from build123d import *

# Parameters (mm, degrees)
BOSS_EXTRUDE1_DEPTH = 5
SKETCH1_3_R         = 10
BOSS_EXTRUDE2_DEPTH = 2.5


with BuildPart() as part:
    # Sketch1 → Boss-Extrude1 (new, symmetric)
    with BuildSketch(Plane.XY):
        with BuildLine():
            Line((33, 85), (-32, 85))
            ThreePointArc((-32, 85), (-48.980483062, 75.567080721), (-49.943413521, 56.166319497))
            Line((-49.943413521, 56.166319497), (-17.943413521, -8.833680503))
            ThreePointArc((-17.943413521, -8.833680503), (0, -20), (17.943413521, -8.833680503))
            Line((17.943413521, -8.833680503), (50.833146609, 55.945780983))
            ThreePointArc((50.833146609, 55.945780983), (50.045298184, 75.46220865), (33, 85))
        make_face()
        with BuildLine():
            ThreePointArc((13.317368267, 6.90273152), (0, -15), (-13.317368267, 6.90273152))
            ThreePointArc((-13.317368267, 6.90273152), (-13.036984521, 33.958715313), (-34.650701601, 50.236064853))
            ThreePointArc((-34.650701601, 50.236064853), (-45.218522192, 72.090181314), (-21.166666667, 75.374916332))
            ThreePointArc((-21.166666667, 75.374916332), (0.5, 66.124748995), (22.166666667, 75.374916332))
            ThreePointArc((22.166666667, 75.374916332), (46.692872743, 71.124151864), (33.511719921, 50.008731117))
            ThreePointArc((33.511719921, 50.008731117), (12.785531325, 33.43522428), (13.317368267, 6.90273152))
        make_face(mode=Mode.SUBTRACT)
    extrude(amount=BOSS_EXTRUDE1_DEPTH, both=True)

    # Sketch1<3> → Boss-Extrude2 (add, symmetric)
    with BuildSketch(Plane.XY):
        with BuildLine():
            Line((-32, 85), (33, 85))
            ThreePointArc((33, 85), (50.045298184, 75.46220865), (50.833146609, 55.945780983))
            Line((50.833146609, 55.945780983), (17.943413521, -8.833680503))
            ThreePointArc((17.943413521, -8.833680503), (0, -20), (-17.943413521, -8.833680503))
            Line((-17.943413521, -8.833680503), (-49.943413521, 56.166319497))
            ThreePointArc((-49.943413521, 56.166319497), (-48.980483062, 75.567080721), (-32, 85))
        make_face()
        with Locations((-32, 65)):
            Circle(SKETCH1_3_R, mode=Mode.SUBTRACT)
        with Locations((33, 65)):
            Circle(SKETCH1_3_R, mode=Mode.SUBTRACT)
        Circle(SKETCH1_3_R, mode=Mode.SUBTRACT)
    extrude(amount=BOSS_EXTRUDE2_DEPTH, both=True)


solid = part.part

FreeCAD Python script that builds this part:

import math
import FreeCAD as App
import Part
import Sketcher
from FreeCAD import Vector

doc = App.newDocument("Part")
params = doc.addObject("Spreadsheet::Sheet", "Params")
for row, (alias, value) in enumerate([
    ("sketch1_radius", "20 mm"),
    ("sketch1_radius2", "30 mm"),
    ("sketch1_radius3", "15 mm"),
    ("sketch1_width", "65 mm"),
    ("pad1_length", "10 mm"),
    ("sketch2_diameter", "20 mm"),
    ("sketch2_radius", "20 mm"),
    ("sketch2_width", "65 mm"),
    ("pad2_length", "5 mm"),
], start=1):
    params.set(f"A{row}", alias)
    params.set(f"B{row}", "=" + value)
    params.setAlias(f"B{row}", alias)

body = doc.addObject("PartDesign::Body", "Body")

# Sketch on XY plane
sketch1 = doc.addObject("Sketcher::SketchObject", "Sketch")
body.addObject(sketch1)
sketch1.AttachmentSupport = (doc.XY_Plane, [""])
sketch1.MapMode = "FlatFace"
sketch1.addGeometry(Part.LineSegment(Vector(33, 85, 0), Vector(-32, 85, 0)), False)
sketch1.addGeometry(Part.ArcOfCircle(Part.Circle(Vector(-32, 65, 0), Vector(0, 0, 1), 20), math.radians(90), math.radians(206)), False)
sketch1.addGeometry(Part.LineSegment(Vector(-50, 56, 0), Vector(-18, -9, 0)), False)
sketch1.addGeometry(Part.ArcOfCircle(Part.Circle(Vector(0, 0, 0), Vector(0, 0, 1), 20), math.radians(-154), math.radians(-26)), False)
sketch1.addGeometry(Part.LineSegment(Vector(18, -9, 0), Vector(51, 56, 0)), False)
sketch1.addGeometry(Part.ArcOfCircle(Part.Circle(Vector(33, 65, 0), Vector(0, 0, 1), 20), math.radians(-27), math.radians(90)), False)
sketch1.addGeometry(Part.ArcOfCircle(Part.Circle(Vector(40, 21, 0), Vector(0, 0, 1), 30), math.radians(102), math.radians(207)), False)
sketch1.addGeometry(Part.ArcOfCircle(Part.Circle(Vector(0, 0, 0), Vector(0, 0, 1), 15), math.radians(153), math.radians(387)), False)
sketch1.addGeometry(Part.ArcOfCircle(Part.Circle(Vector(-40, 21, 0), Vector(0, 0, 1), 30), math.radians(-27), math.radians(80)), False)
sketch1.addGeometry(Part.ArcOfCircle(Part.Circle(Vector(-32, 65, 0), Vector(0, 0, 1), 15), math.radians(44), math.radians(260)), False)
sketch1.addGeometry(Part.ArcOfCircle(Part.Circle(Vector(0, 96, 0), Vector(0, 0, 1), 30), math.radians(-136), math.radians(-44)), False)
sketch1.addGeometry(Part.ArcOfCircle(Part.Circle(Vector(33, 65, 0), Vector(0, 0, 1), 15), math.radians(-88), math.radians(136)), False)
sketch1.addConstraint(Sketcher.Constraint("Tangent", 0, 2, 1, 1))
sketch1.addConstraint(Sketcher.Constraint("Tangent", 1, 2, 2, 1))
sketch1.addConstraint(Sketcher.Constraint("Tangent", 2, 2, 3, 1))
sketch1.addConstraint(Sketcher.Constraint("Coincident", 3, 2, 4, 1))
sketch1.addConstraint(Sketcher.Constraint("Tangent", 4, 2, 5, 1))
sketch1.addConstraint(Sketcher.Constraint("Tangent", 5, 2, 0, 1))
sketch1.addConstraint(Sketcher.Constraint("Tangent", 6, 2, 7, 2))
sketch1.addConstraint(Sketcher.Constraint("Tangent", 7, 1, 8, 1))
sketch1.addConstraint(Sketcher.Constraint("Tangent", 8, 2, 9, 2))
sketch1.addConstraint(Sketcher.Constraint("Tangent", 9, 1, 10, 1))
sketch1.addConstraint(Sketcher.Constraint("Tangent", 10, 2, 11, 2))
sketch1.addConstraint(Sketcher.Constraint("Coincident", 11, 1, 6, 1))
sketch1.addConstraint(Sketcher.Constraint("Horizontal", 0))
sketch1.addConstraint(Sketcher.Constraint("Coincident", 3, 3, -1, 1))
sketch1.addConstraint(Sketcher.Constraint("Coincident", 7, 3, -1, 1))
sketch1.addConstraint(Sketcher.Constraint("Coincident", 9, 3, 1, 3))
sketch1.addConstraint(Sketcher.Constraint("Coincident", 11, 3, 5, 3))
sketch1.addConstraint(Sketcher.Constraint("Equal", 1, 3))
sketch1.addConstraint(Sketcher.Constraint("Equal", 3, 5))
sketch1.addConstraint(Sketcher.Constraint("Equal", 6, 8))
sketch1.addConstraint(Sketcher.Constraint("Equal", 7, 9))
sketch1.addConstraint(Sketcher.Constraint("Equal", 8, 10))
sketch1.addConstraint(Sketcher.Constraint("Equal", 9, 11))
sketch1.addConstraint(Sketcher.Constraint("Horizontal", 6, 3, 8, 3))
sketch1.addConstraint(Sketcher.Constraint("Horizontal", 2, 2, 3, 2))
sketch1.addConstraint(Sketcher.Constraint("Radius", 1, 20.0))
sketch1.addConstraint(Sketcher.Constraint("Radius", 6, 30.0))
sketch1.addConstraint(Sketcher.Constraint("Radius", 7, 15.0))
sketch1.addConstraint(Sketcher.Constraint("DistanceX", 0, 2, 0, 1, 65.0))
sketch1.addConstraint(Sketcher.Constraint("DistanceX", 1, 3, -1, 1, 32.0))
sketch1.addConstraint(Sketcher.Constraint("DistanceY", -1, 1, 1, 3, 65.0))
sketch1.setExpression("Constraints[25]", "Params.sketch1_radius")
sketch1.setExpression("Constraints[26]", "Params.sketch1_radius2")
sketch1.setExpression("Constraints[27]", "Params.sketch1_radius3")
sketch1.setExpression("Constraints[28]", "Params.sketch1_width")
pad1 = doc.addObject("PartDesign::Pad", "Pad")
body.addObject(pad1)
pad1.Profile = sketch1
pad1.setExpression("Length", "Params.pad1_length")
pad1.Midplane = True

# Sketch on XY plane
sketch2 = doc.addObject("Sketcher::SketchObject", "Sketch001")
body.addObject(sketch2)
sketch2.AttachmentSupport = (doc.XY_Plane, [""])
sketch2.MapMode = "FlatFace"
sketch2.addGeometry(Part.LineSegment(Vector(33, 85, 0), Vector(-32, 85, 0)), False)
sketch2.addGeometry(Part.ArcOfCircle(Part.Circle(Vector(-32, 65, 0), Vector(0, 0, 1), 20), math.radians(90), math.radians(206)), False)
sketch2.addGeometry(Part.LineSegment(Vector(-50, 56, 0), Vector(-18, -9, 0)), False)
sketch2.addGeometry(Part.ArcOfCircle(Part.Circle(Vector(0, 0, 0), Vector(0, 0, 1), 20), math.radians(-154), math.radians(-26)), False)
sketch2.addGeometry(Part.LineSegment(Vector(18, -9, 0), Vector(51, 56, 0)), False)
sketch2.addGeometry(Part.ArcOfCircle(Part.Circle(Vector(33, 65, 0), Vector(0, 0, 1), 20), math.radians(-27), math.radians(90)), False)
sketch2.addGeometry(Part.Circle(Vector(0, 0, 0), Vector(0, 0, 1), 10), False)
sketch2.addGeometry(Part.Circle(Vector(33, 65, 0), Vector(0, 0, 1), 10), False)
sketch2.addGeometry(Part.Circle(Vector(-32, 65, 0), Vector(0, 0, 1), 10), False)
sketch2.addConstraint(Sketcher.Constraint("Tangent", 0, 2, 1, 1))
sketch2.addConstraint(Sketcher.Constraint("Tangent", 1, 2, 2, 1))
sketch2.addConstraint(Sketcher.Constraint("Tangent", 2, 2, 3, 1))
sketch2.addConstraint(Sketcher.Constraint("Coincident", 3, 2, 4, 1))
sketch2.addConstraint(Sketcher.Constraint("Tangent", 4, 2, 5, 1))
sketch2.addConstraint(Sketcher.Constraint("Tangent", 5, 2, 0, 1))
sketch2.addConstraint(Sketcher.Constraint("Horizontal", 0))
sketch2.addConstraint(Sketcher.Constraint("Coincident", 3, 3, -1, 1))
sketch2.addConstraint(Sketcher.Constraint("Coincident", 6, 3, -1, 1))
sketch2.addConstraint(Sketcher.Constraint("Coincident", 7, 3, 5, 3))
sketch2.addConstraint(Sketcher.Constraint("Coincident", 8, 3, 1, 3))
sketch2.addConstraint(Sketcher.Constraint("Equal", 1, 3))
sketch2.addConstraint(Sketcher.Constraint("Equal", 3, 5))
sketch2.addConstraint(Sketcher.Constraint("Equal", 6, 7))
sketch2.addConstraint(Sketcher.Constraint("Equal", 7, 8))
sketch2.addConstraint(Sketcher.Constraint("Horizontal", 2, 2, 3, 2))
sketch2.addConstraint(Sketcher.Constraint("Diameter", 6, 20.0))
sketch2.addConstraint(Sketcher.Constraint("Radius", 1, 20.0))
sketch2.addConstraint(Sketcher.Constraint("DistanceX", 0, 2, 0, 1, 65.0))
sketch2.addConstraint(Sketcher.Constraint("DistanceX", 1, 3, -1, 1, 32.0))
sketch2.addConstraint(Sketcher.Constraint("DistanceY", -1, 1, 1, 3, 65.0))
sketch2.setExpression("Constraints[16]", "Params.sketch2_diameter")
sketch2.setExpression("Constraints[17]", "Params.sketch2_radius")
sketch2.setExpression("Constraints[18]", "Params.sketch2_width")
pad2 = doc.addObject("PartDesign::Pad", "Pad001")
body.addObject(pad2)
pad2.Profile = sketch2
pad2.setExpression("Length", "Params.pad2_length")
pad2.Midplane = True

doc.recompute()
